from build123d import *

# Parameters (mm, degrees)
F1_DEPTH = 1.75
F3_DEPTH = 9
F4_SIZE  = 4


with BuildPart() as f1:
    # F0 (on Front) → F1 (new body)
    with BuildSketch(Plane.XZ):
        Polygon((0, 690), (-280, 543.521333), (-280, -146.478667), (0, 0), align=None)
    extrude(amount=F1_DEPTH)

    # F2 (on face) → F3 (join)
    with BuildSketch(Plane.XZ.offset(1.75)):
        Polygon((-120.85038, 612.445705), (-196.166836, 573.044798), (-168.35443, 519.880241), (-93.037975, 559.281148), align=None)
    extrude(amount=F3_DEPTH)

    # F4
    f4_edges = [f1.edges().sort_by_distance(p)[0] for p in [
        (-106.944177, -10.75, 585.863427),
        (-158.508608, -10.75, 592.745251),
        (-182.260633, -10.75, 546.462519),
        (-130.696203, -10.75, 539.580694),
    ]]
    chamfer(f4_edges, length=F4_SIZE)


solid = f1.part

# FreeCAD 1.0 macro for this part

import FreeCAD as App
import Part
import Sketcher
from FreeCAD import Vector
Q = App.Units.Quantity


def edges_at(feature, points):
    """Names of the edges that pass closest to the given points."""
    edges = feature.Shape.Edges
    near = lambda p: min(range(len(edges)), key=lambda i: edges[i].distToShape(Part.Vertex(*p))[0])
    return sorted({f"Edge{near(p) + 1}" for p in points})

doc = App.newDocument("Part")
body = doc.addObject("PartDesign::Body", "Body")

# Sketch on XZ plane
sketch1 = doc.addObject("Sketcher::SketchObject", "Sketch")
body.addObject(sketch1)
sketch1.AttachmentSupport = (doc.XZ_Plane, [""])
sketch1.MapMode = "FlatFace"
sketch1.addGeometry([
    Part.LineSegment(Vector(0, 690, 0), Vector(-280, 543.521333, 0)),
    Part.LineSegment(Vector(-280, 543.521333, 0), Vector(-280, -146.478667, 0)),
    Part.LineSegment(Vector(-280, -146.478667, 0), Vector(0, 0, 0)),
    Part.LineSegment(Vector(0, 0, 0), Vector(0, 690, 0)),
], False)
sketch1.addConstraint([
    Sketcher.Constraint("Coincident", 0, 2, 1, 1),
    Sketcher.Constraint("Coincident", 1, 2, 2, 1),
    Sketcher.Constraint("Coincident", 2, 2, 3, 1),
    Sketcher.Constraint("Coincident", 3, 2, 0, 1),
    Sketcher.Constraint("Vertical", 1),
    Sketcher.Constraint("Vertical", 3),
    Sketcher.Constraint("Coincident", 2, 2, -1, 1),
    Sketcher.Constraint("Parallel", 0, 2),
    Sketcher.Constraint("DistanceY", 1, 2, 1, 1, Q("690 mm")),
    Sketcher.Constraint("Distance", 0, Q("316 mm")),
    Sketcher.Constraint("DistanceX", 0, 2, -1, 1, Q("280 mm")),
])
pad1 = doc.addObject("PartDesign::Pad", "Pad")
body.addObject(pad1)
pad1.Profile = sketch1
pad1.Length = 1.75

# Sketch on XZ plane
sketch2 = doc.addObject("Sketcher::SketchObject", "Sketch001")
body.addObject(sketch2)
sketch2.AttachmentSupport = (doc.XZ_Plane, [""])
sketch2.MapMode = "FlatFace"
sketch2.AttachmentOffset = App.Placement(Vector(0, 0, 1.75), App.Rotation())
sketch2.addGeometry([
    Part.LineSegment(Vector(-120.85038, 612.445705, 0), Vector(-196.166836, 573.044798, 0)),
    Part.LineSegment(Vector(-196.166836, 573.044798, 0), Vector(-168.35443, 519.880241, 0)),
    Part.LineSegment(Vector(-168.35443, 519.880241, 0), Vector(-93.037975, 559.281148, 0)),
    Part.LineSegment(Vector(-93.037975, 559.281148, 0), Vector(-120.85038, 612.445705, 0)),
], False)
sketch2.addConstraint([
    Sketcher.Constraint("Coincident", 0, 2, 1, 1),
    Sketcher.Constraint("Coincident", 1, 2, 2, 1),
    Sketcher.Constraint("Coincident", 2, 2, 3, 1),
    Sketcher.Constraint("Coincident", 3, 2, 0, 1),
    Sketcher.Constraint("Perpendicular", 0, 1),
    Sketcher.Constraint("Perpendicular", 1, 2),
    Sketcher.Constraint("Perpendicular", 2, 3),
    Sketcher.Constraint("Distance", 0, Q("85 mm")),
    Sketcher.Constraint("Distance", 1, Q("60 mm")),
    Sketcher.Constraint("DistanceY", -1, 1, 0, 2, Q("573.044798 mm")),
    Sketcher.Constraint("DistanceX", 1, 2, -1, 1, Q("168.35443 mm")),
    Sketcher.Constraint("DistanceY", -1, 1, 1, 2, Q("519.880241 mm")),
])
pad2 = doc.addObject("PartDesign::Pad", "Pad001")
body.addObject(pad2)
pad2.Profile = sketch2
pad2.Length = 9
doc.recompute()

chamfer = doc.addObject("PartDesign::Chamfer", "Chamfer")
body.addObject(chamfer)
chamfer.Base = (pad2, edges_at(pad2, [
    (-106.944, -10.75, 585.863),
    (-158.509, -10.75, 592.745),
    (-182.261, -10.75, 546.463),
    (-130.696, -10.75, 539.581),
]))
chamfer.Size = 4

doc.recompute()
